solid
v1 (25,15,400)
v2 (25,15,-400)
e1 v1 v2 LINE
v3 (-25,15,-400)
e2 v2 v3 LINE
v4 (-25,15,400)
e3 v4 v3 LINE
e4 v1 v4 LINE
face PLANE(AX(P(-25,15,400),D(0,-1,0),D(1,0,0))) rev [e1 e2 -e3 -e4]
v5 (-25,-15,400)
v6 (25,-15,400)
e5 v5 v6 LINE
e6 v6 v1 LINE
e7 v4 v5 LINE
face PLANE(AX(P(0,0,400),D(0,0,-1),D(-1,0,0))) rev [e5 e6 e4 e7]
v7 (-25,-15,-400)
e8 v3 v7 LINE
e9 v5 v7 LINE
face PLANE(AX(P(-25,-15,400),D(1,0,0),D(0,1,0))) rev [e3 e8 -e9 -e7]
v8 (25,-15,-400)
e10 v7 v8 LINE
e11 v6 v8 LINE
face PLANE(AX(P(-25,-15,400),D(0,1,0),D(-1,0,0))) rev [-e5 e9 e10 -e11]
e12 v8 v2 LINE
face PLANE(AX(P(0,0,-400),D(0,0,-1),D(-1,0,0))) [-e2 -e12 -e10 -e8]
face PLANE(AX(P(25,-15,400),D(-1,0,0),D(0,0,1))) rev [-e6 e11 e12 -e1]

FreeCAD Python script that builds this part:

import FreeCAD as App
import Part
import Sketcher

V = App.Vector


def add_polygon(sketch, points):
    """Adds a closed chain of lines whose ends are joined by coincident constraints."""
    first, n = sketch.GeometryCount, len(points)
    for a, b in zip(points, points[1:] + points[:1]):
        sketch.addGeometry(Part.LineSegment(App.Vector(*a, 0), App.Vector(*b, 0)), False)
    for i in range(n):
        sketch.addConstraint(Sketcher.Constraint("Coincident", first + i, 2, first + (i + 1) % n, 1))

doc = App.newDocument("Part")
params = doc.addObject("Spreadsheet::Sheet", "Params")
for row, (alias, value) in enumerate([
    ("sketch1_width", "50 mm"),
    ("sketch1_height", "30 mm"),
    ("pad1_length", "800 mm"),
], start=1):
    params.set(f"A{row}", alias)
    params.set(f"B{row}", "=" + value)
    params.setAlias(f"B{row}", alias)

body = doc.addObject("PartDesign::Body", "Body")

sketch1 = body.newObject("Sketcher::SketchObject", "Sketch")
sketch1.AttachmentSupport = (doc.getObject("XY_Plane"), [""])
sketch1.MapMode = "FlatFace"
add_polygon(sketch1, [(-25, 15), (-25, -15), (25, -15), (25, 15)])
sketch1.addConstraint([
    Sketcher.Constraint("Vertical", 0),
    Sketcher.Constraint("Horizontal", 1),
    Sketcher.Constraint("Vertical", 2),
    Sketcher.Constraint("Horizontal", 3),
    Sketcher.Constraint("Symmetric", 0, 2, 2, 2, -1, 1),
    Sketcher.Constraint("DistanceX", 1, 1, 1, 2, 50.0),
    Sketcher.Constraint("DistanceY", 0, 2, 0, 1, 30.0),
])
sketch1.setExpression("Constraints[9]", "Params.sketch1_width")
sketch1.setExpression("Constraints[10]", "Params.sketch1_height")
pad1 = body.newObject("PartDesign::Pad", "Pad")
pad1.Profile = sketch1
pad1.setExpression("Length", "Params.pad1_length")
pad1.Midplane = True

doc.recompute()
